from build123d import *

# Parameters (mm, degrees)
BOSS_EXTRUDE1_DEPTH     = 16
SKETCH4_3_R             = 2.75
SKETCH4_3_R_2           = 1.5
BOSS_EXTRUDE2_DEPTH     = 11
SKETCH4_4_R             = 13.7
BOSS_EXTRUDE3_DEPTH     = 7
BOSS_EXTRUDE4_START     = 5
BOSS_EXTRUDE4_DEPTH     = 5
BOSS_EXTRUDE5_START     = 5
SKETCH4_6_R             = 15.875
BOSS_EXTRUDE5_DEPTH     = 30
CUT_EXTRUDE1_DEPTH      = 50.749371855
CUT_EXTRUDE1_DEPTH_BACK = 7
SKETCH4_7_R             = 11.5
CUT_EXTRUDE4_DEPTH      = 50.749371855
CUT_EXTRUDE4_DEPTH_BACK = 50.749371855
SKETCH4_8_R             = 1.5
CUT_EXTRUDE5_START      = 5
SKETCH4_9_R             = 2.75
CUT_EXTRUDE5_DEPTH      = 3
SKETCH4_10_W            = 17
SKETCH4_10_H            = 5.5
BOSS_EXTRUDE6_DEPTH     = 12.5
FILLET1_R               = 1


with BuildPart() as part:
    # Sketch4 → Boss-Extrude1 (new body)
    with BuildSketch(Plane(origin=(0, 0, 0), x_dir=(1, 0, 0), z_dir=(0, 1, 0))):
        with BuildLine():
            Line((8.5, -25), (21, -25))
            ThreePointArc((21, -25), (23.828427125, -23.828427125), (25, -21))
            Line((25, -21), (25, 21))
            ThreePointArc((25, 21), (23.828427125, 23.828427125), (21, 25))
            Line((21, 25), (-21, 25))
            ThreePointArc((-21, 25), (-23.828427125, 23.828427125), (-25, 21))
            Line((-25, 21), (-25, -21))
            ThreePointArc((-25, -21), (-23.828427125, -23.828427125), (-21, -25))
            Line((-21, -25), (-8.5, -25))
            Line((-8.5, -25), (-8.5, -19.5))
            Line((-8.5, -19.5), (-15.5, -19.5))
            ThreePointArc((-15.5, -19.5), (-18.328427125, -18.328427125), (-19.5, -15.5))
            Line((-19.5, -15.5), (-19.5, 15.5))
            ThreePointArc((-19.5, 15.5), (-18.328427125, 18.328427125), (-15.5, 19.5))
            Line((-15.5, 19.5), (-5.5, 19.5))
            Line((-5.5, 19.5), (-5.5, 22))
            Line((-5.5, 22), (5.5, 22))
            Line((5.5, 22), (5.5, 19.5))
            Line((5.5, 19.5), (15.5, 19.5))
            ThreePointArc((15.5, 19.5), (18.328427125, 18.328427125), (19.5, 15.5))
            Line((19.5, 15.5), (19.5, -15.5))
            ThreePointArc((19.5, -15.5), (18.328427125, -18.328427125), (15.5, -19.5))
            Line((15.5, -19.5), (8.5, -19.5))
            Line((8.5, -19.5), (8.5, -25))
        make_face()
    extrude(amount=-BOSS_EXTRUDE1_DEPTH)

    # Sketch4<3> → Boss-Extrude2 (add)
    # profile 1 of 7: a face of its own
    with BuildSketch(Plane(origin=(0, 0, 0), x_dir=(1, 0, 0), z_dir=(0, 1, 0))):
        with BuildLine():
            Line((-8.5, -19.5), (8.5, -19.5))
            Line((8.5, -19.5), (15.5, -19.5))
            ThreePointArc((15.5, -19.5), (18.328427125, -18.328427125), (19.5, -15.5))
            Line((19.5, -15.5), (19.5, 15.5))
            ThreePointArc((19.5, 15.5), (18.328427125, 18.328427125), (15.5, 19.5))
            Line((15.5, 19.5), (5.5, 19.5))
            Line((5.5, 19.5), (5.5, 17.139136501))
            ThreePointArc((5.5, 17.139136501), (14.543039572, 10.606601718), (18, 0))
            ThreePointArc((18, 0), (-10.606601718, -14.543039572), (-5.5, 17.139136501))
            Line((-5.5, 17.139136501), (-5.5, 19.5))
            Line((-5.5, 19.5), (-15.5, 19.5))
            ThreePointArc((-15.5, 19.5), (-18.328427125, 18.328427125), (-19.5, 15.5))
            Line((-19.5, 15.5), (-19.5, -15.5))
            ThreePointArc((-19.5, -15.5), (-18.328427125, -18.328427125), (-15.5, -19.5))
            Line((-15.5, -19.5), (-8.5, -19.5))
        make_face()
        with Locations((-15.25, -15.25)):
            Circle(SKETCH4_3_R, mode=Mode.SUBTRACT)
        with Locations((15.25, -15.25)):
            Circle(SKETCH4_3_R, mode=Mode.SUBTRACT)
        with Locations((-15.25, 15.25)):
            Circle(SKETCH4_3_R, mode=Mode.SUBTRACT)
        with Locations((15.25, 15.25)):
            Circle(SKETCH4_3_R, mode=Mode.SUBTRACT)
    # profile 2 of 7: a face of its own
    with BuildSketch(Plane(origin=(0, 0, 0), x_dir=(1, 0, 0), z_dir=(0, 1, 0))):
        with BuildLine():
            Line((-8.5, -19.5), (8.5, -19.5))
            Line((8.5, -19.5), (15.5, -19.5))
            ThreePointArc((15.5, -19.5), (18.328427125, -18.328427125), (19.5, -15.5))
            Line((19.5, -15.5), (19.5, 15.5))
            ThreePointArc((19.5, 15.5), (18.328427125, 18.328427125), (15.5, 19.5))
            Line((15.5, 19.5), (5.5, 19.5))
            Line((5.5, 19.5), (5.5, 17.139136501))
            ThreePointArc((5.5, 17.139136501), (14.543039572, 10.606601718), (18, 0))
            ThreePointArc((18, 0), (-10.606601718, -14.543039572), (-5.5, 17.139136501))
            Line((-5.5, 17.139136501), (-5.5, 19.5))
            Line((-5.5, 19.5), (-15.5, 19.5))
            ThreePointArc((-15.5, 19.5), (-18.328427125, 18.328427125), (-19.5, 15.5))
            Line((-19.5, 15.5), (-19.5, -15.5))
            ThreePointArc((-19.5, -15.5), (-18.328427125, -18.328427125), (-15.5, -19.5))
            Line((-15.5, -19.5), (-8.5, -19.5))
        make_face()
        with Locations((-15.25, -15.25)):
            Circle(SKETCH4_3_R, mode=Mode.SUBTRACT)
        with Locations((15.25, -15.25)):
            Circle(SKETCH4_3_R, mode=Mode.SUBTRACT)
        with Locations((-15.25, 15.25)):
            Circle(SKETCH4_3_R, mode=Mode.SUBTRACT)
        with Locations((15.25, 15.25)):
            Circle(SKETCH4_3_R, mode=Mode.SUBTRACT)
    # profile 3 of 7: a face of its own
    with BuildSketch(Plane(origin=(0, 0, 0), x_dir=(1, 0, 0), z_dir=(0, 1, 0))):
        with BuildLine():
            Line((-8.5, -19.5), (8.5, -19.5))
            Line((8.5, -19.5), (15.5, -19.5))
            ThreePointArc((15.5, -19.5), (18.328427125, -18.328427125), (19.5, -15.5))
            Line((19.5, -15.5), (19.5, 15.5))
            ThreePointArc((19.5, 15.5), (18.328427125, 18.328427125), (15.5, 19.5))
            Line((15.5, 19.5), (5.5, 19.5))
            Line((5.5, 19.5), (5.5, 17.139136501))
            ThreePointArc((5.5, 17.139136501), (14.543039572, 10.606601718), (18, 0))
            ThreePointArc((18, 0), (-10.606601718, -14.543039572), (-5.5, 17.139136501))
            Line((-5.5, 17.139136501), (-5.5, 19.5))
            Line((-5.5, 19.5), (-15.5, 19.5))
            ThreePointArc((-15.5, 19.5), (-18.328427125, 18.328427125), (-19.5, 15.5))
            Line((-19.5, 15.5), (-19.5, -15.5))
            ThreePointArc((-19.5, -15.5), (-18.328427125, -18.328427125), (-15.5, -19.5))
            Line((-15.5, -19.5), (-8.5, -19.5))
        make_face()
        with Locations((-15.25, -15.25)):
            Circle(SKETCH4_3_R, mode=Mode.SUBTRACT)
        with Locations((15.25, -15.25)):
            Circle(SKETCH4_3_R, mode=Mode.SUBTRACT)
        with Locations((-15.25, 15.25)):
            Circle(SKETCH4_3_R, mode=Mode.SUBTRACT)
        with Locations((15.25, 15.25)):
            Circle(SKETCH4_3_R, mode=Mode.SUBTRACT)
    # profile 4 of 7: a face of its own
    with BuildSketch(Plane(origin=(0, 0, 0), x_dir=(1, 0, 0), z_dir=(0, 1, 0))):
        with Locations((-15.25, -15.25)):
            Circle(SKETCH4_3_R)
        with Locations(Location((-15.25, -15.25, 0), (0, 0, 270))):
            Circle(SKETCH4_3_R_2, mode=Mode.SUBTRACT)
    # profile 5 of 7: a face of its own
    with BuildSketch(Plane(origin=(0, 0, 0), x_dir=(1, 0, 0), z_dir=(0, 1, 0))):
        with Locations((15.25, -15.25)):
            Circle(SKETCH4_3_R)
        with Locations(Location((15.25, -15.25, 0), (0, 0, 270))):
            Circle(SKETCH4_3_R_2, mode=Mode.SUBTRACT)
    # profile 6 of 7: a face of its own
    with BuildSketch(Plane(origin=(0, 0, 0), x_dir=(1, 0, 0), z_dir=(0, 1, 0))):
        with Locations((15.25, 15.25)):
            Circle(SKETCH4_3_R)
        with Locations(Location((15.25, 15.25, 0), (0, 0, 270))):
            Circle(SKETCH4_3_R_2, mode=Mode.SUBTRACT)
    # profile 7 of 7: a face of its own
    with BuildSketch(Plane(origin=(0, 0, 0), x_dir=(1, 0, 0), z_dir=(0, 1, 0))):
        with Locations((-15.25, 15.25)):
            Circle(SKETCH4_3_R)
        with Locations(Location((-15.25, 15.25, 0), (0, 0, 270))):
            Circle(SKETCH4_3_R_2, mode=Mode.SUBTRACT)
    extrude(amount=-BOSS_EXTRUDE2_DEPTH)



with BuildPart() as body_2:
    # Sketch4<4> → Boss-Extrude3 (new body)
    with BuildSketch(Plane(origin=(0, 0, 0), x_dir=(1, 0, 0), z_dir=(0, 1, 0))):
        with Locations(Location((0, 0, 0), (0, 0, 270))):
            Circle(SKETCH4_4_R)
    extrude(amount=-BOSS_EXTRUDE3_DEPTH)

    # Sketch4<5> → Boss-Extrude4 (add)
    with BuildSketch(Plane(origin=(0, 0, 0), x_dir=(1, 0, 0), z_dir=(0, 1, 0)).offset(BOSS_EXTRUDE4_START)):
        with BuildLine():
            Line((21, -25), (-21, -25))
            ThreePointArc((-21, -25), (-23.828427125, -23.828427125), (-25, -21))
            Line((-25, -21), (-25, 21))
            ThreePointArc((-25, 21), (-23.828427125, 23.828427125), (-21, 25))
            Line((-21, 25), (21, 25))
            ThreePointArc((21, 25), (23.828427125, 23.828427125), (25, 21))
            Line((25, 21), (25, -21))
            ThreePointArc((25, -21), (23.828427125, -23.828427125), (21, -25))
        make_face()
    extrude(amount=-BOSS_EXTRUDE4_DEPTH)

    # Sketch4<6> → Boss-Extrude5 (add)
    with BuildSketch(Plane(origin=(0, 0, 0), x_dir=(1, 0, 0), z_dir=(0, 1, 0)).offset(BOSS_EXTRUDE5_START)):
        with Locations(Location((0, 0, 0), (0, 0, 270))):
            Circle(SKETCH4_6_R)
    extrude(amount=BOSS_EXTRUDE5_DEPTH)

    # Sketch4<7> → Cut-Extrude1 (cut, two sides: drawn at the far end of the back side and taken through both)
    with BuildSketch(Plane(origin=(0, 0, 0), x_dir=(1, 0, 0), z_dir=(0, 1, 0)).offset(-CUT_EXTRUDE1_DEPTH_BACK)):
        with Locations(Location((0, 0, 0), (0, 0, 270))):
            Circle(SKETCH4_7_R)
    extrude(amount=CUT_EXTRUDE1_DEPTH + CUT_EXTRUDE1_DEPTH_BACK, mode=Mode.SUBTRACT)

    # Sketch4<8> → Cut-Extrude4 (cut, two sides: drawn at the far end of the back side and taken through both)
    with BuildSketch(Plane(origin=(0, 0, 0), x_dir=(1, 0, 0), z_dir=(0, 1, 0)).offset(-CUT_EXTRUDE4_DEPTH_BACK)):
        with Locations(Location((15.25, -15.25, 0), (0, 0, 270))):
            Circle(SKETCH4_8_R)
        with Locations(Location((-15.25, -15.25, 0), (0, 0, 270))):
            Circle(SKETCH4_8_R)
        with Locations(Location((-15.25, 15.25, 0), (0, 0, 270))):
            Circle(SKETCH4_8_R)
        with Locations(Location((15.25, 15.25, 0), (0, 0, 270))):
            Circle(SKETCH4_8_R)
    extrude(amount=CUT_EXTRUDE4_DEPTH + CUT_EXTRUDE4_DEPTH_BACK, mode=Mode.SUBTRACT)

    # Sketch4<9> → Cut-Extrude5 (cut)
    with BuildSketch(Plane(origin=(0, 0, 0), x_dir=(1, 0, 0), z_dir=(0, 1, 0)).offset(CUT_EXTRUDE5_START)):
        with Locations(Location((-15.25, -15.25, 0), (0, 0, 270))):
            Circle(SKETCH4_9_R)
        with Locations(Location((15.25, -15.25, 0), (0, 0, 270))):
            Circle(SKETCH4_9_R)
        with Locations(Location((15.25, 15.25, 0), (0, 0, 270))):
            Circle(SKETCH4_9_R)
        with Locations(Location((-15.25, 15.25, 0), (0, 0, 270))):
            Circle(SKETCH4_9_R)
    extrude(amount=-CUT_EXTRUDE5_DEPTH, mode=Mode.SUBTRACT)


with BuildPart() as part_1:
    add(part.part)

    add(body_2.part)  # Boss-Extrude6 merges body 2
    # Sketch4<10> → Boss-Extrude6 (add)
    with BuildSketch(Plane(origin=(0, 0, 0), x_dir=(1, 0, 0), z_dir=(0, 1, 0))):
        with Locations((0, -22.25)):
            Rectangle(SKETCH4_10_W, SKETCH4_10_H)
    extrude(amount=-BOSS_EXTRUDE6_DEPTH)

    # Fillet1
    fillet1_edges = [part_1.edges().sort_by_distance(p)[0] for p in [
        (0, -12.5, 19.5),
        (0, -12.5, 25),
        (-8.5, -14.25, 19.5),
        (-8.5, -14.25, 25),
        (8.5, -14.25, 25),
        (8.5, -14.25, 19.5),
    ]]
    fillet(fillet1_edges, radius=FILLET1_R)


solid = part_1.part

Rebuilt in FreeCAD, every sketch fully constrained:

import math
import FreeCAD as App
import Part
import Sketcher

V = App.Vector


def edges_at(feature, points):
    """Names of the edges that pass closest to the given points."""
    edges = feature.Shape.Edges
    near = lambda p: min(range(len(edges)), key=lambda i: edges[i].distToShape(Part.Vertex(*p))[0])
    return sorted({f"Edge{near(p) + 1}" for p in points})

doc = App.newDocument("Part")
params = doc.addObject("Spreadsheet::Sheet", "Params")
for row, (alias, value) in enumerate([
    ("sketch1_radius", "4 mm"),
    ("sketch1_width", "42 mm"),
    ("sketch1_width2", "7 mm"),
    ("sketch1_width3", "10 mm"),
    ("sketch1_width4", "11 mm"),
    ("pad1_length", "16 mm"),
    ("sketch2_diameter", "3 mm"),
    ("sketch2_radius", "4 mm"),
    ("sketch2_radius2", "18 mm"),
    ("sketch2_width", "10 mm"),
    ("sketch2_width2", "31 mm"),
    ("pad2_length", "11 mm"),
    ("sketch3_diameter", "27.4 mm"),
    ("pad3_length", "7 mm"),
    ("sketch4_radius", "4 mm"),
    ("sketch4_width", "42 mm"),
    ("pad4_length", "5 mm"),
    ("sketch5_diameter", "31.75 mm"),
    ("pad5_length", "30 mm"),
    ("sketch6_diameter", "23 mm"),
    ("sketch7_diameter", "3 mm"),
    ("sketch8_diameter", "5.5 mm"),
    ("pocket3_length", "3 mm"),
    ("sketch9_width", "17 mm"),
    ("sketch9_height", "5.5 mm"),
    ("pad6_length", "12.5 mm"),
    ("fillet_radius", "1 mm"),
], start=1):
    params.set(f"A{row}", alias)
    params.set(f"B{row}", "=" + value)
    params.setAlias(f"B{row}", alias)

body = doc.addObject("PartDesign::Body", "Body")

# Sketch on XZ plane
sketch1 = doc.addObject("Sketcher::SketchObject", "Sketch")
body.addObject(sketch1)
sketch1.AttachmentSupport = (doc.XZ_Plane, [""])
sketch1.MapMode = "FlatFace"
sketch1.addGeometry(Part.LineSegment(V(8.5, 25, 0), V(21, 25, 0)), False)
sketch1.addGeometry(Part.ArcOfCircle(Part.Circle(V(21, 21, 0), V(0, 0, 1), 4), math.radians(0), math.radians(90)), False)
sketch1.addGeometry(Part.LineSegment(V(25, 21, 0), V(25, -21, 0)), False)
sketch1.addGeometry(Part.ArcOfCircle(Part.Circle(V(21, -21, 0), V(0, 0, 1), 4), math.radians(-90), math.radians(0)), False)
sketch1.addGeometry(Part.LineSegment(V(21, -25, 0), V(-21, -25, 0)), False)
sketch1.addGeometry(Part.ArcOfCircle(Part.Circle(V(-21, -21, 0), V(0, 0, 1), 4), math.radians(180), math.radians(270)), False)
sketch1.addGeometry(Part.LineSegment(V(-25, -21, 0), V(-25, 21, 0)), False)
sketch1.addGeometry(Part.ArcOfCircle(Part.Circle(V(-21, 21, 0), V(0, 0, 1), 4), math.radians(90), math.radians(180)), False)
sketch1.addGeometry(Part.LineSegment(V(-21, 25, 0), V(-8.5, 25, 0)), False)
sketch1.addGeometry(Part.LineSegment(V(-8.5, 25, 0), V(-8.5, 19.5, 0)), False)
sketch1.addGeometry(Part.LineSegment(V(-8.5, 19.5, 0), V(-15.5, 19.5, 0)), False)
sketch1.addGeometry(Part.ArcOfCircle(Part.Circle(V(-15.5, 15.5, 0), V(0, 0, 1), 4), math.radians(90), math.radians(180)), False)
sketch1.addGeometry(Part.LineSegment(V(-19.5, 15.5, 0), V(-19.5, -15.5, 0)), False)
sketch1.addGeometry(Part.ArcOfCircle(Part.Circle(V(-15.5, -15.5, 0), V(0, 0, 1), 4), math.radians(180), math.radians(270)), False)
sketch1.addGeometry(Part.LineSegment(V(-15.5, -19.5, 0), V(-5.5, -19.5, 0)), False)
sketch1.addGeometry(Part.LineSegment(V(-5.5, -19.5, 0), V(-5.5, -22, 0)), False)
sketch1.addGeometry(Part.LineSegment(V(-5.5, -22, 0), V(5.5, -22, 0)), False)
sketch1.addGeometry(Part.LineSegment(V(5.5, -22, 0), V(5.5, -19.5, 0)), False)
sketch1.addGeometry(Part.LineSegment(V(5.5, -19.5, 0), V(15.5, -19.5, 0)), False)
sketch1.addGeometry(Part.ArcOfCircle(Part.Circle(V(15.5, -15.5, 0), V(0, 0, 1), 4), math.radians(-90), math.radians(0)), False)
sketch1.addGeometry(Part.LineSegment(V(19.5, -15.5, 0), V(19.5, 15.5, 0)), False)
sketch1.addGeometry(Part.ArcOfCircle(Part.Circle(V(15.5, 15.5, 0), V(0, 0, 1), 4), math.radians(0), math.radians(90)), False)
sketch1.addGeometry(Part.LineSegment(V(15.5, 19.5, 0), V(8.5, 19.5, 0)), False)
sketch1.addGeometry(Part.LineSegment(V(8.5, 19.5, 0), V(8.5, 25, 0)), False)
sketch1.addConstraint(Sketcher.Constraint("Tangent", 0, 2, 1, 2))
sketch1.addConstraint(Sketcher.Constraint("Tangent", 1, 1, 2, 1))
sketch1.addConstraint(Sketcher.Constraint("Tangent", 2, 2, 3, 2))
sketch1.addConstraint(Sketcher.Constraint("Tangent", 3, 1, 4, 1))
sketch1.addConstraint(Sketcher.Constraint("Tangent", 4, 2, 5, 2))
sketch1.addConstraint(Sketcher.Constraint("Tangent", 5, 1, 6, 1))
sketch1.addConstraint(Sketcher.Constraint("Tangent", 6, 2, 7, 2))
sketch1.addConstraint(Sketcher.Constraint("Tangent", 7, 1, 8, 1))
sketch1.addConstraint(Sketcher.Constraint("Coincident", 8, 2, 9, 1))
sketch1.addConstraint(Sketcher.Constraint("Coincident", 9, 2, 10, 1))
sketch1.addConstraint(Sketcher.Constraint("Tangent", 10, 2, 11, 1))
sketch1.addConstraint(Sketcher.Constraint("Tangent", 11, 2, 12, 1))
sketch1.addConstraint(Sketcher.Constraint("Tangent", 12, 2, 13, 1))
sketch1.addConstraint(Sketcher.Constraint("Tangent", 13, 2, 14, 1))
sketch1.addConstraint(Sketcher.Constraint("Coincident", 14, 2, 15, 1))
sketch1.addConstraint(Sketcher.Constraint("Coincident", 15, 2, 16, 1))
sketch1.addConstraint(Sketcher.Constraint("Coincident", 16, 2, 17, 1))
sketch1.addConstraint(Sketcher.Constraint("Coincident", 17, 2, 18, 1))
sketch1.addConstraint(Sketcher.Constraint("Tangent", 18, 2, 19, 1))
sketch1.addConstraint(Sketcher.Constraint("Tangent", 19, 2, 20, 1))
sketch1.addConstraint(Sketcher.Constraint("Tangent", 20, 2, 21, 1))
sketch1.addConstraint(Sketcher.Constraint("Tangent", 21, 2, 22, 1))
sketch1.addConstraint(Sketcher.Constraint("Coincident", 22, 2, 23, 1))
sketch1.addConstraint(Sketcher.Constraint("Coincident", 23, 2, 0, 1))
sketch1.addConstraint(Sketcher.Constraint("Horizontal", 0))
sketch1.addConstraint(Sketcher.Constraint("Vertical", 2))
sketch1.addConstraint(Sketcher.Constraint("Horizontal", 4))
sketch1.addConstraint(Sketcher.Constraint("Vertical", 6))
sketch1.addConstraint(Sketcher.Constraint("Horizontal", 8))
sketch1.addConstraint(Sketcher.Constraint("Vertical", 9))
sketch1.addConstraint(Sketcher.Constraint("Horizontal", 10))
sketch1.addConstraint(Sketcher.Constraint("Vertical", 12))
sketch1.addConstraint(Sketcher.Constraint("Horizontal", 14))
sketch1.addConstraint(Sketcher.Constraint("Vertical", 15))
sketch1.addConstraint(Sketcher.Constraint("Horizontal", 16))
sketch1.addConstraint(Sketcher.Constraint("Vertical", 17))
sketch1.addConstraint(Sketcher.Constraint("Horizontal", 18))
sketch1.addConstraint(Sketcher.Constraint("Vertical", 20))
sketch1.addConstraint(Sketcher.Constraint("Horizontal", 22))
sketch1.addConstraint(Sketcher.Constraint("Vertical", 23))
sketch1.addConstraint(Sketcher.Constraint("Equal", 1, 3))
sketch1.addConstraint(Sketcher.Constraint("Equal", 3, 5))
sketch1.addConstraint(Sketcher.Constraint("Equal", 5, 7))
sketch1.addConstraint(Sketcher.Constraint("Equal", 7, 11))
sketch1.addConstraint(Sketcher.Constraint("Equal", 11, 13))
sketch1.addConstraint(Sketcher.Constraint("Equal", 13, 19))
sketch1.addConstraint(Sketcher.Constraint("Equal", 19, 21))
sketch1.addConstraint(Sketcher.Constraint("Symmetric", 1, 3, 5, 3, -1, 1))
sketch1.addConstraint(Sketcher.Constraint("Symmetric", 11, 3, 19, 3, -1, 1))
sketch1.addConstraint(Sketcher.Constraint("Symmetric", 14, 2, 17, 2, -2))
sketch1.addConstraint(Sketcher.Constraint("Symmetric", 9, 2, 22, 2, -2))
sketch1.addConstraint(Sketcher.Constraint("Horizontal", 1, 3, 7, 3))
sketch1.addConstraint(Sketcher.Constraint("Equal", 4, 2))
sketch1.addConstraint(Sketcher.Constraint("Radius", 1, 4.0))
sketch1.addConstraint(Sketcher.Constraint("DistanceX", 4, 2, 4, 1, 42.0))
sketch1.addConstraint(Sketcher.Constraint("DistanceX", 10, 2, 10, 1, 7.0))
sketch1.addConstraint(Sketcher.Constraint("DistanceX", 14, 1, 14, 2, 10.0))
sketch1.addConstraint(Sketcher.Constraint("DistanceX", 16, 1, 16, 2, 11.0))
sketch1.addConstraint(Sketcher.Constraint("DistanceY", 12, 2, 12, 1, 31.0))
sketch1.addConstraint(Sketcher.Constraint("DistanceY", 15, 2, 15, 1, 2.5))
sketch1.setExpression("Constraints[53]", "Params.sketch1_radius")
sketch1.setExpression("Constraints[54]", "Params.sketch1_width")
sketch1.setExpression("Constraints[55]", "Params.sketch1_width2")
sketch1.setExpression("Constraints[56]", "Params.sketch1_width3")
sketch1.setExpression("Constraints[57]", "Params.sketch1_width4")
pad1 = doc.addObject("PartDesign::Pad", "Pad")
body.addObject(pad1)
pad1.Profile = sketch1
pad1.setExpression("Length", "Params.pad1_length")

# Sketch on XZ plane
sketch2 = doc.addObject("Sketcher::SketchObject", "Sketch001")
body.addObject(sketch2)
sketch2.AttachmentSupport = (doc.XZ_Plane, [""])
sketch2.MapMode = "FlatFace"
sketch2.addGeometry(Part.ArcOfCircle(Part.Circle(V(15.5, 15.5, 0), V(0, 0, 1), 4), math.radians(0), math.radians(90)), False)
sketch2.addGeometry(Part.LineSegment(V(19.5, 15.5, 0), V(19.5, -15.5, 0)), False)
sketch2.addGeometry(Part.ArcOfCircle(Part.Circle(V(15.5, -15.5, 0), V(0, 0, 1), 4), math.radians(-90), math.radians(0)), False)
sketch2.addGeometry(Part.LineSegment(V(15.5, -19.5, 0), V(5.5, -19.5, 0)), False)
sketch2.addGeometry(Part.LineSegment(V(5.5, -19.5, 0), V(5.5, -17.139137, 0)), False)
sketch2.addGeometry(Part.ArcOfCircle(Part.Circle(V(0, 0, 0), V(0, 0, 1), 18), math.radians(-72.208409), math.radians(0)), False)
sketch2.addGeometry(Part.ArcOfCircle(Part.Circle(V(0, 0, 0), V(0, 0, 1), 18), math.radians(0), math.radians(252.208409)), False)
sketch2.addGeometry(Part.LineSegment(V(-5.5, -17.139137, 0), V(-5.5, -19.5, 0)), False)
sketch2.addGeometry(Part.LineSegment(V(-5.5, -19.5, 0), V(-15.5, -19.5, 0)), False)
sketch2.addGeometry(Part.ArcOfCircle(Part.Circle(V(-15.5, -15.5, 0), V(0, 0, 1), 4), math.radians(180), math.radians(270)), False)
sketch2.addGeometry(Part.LineSegment(V(-19.5, -15.5, 0), V(-19.5, 15.5, 0)), False)
sketch2.addGeometry(Part.ArcOfCircle(Part.Circle(V(-15.5, 15.5, 0), V(0, 0, 1), 4), math.radians(90), math.radians(180)), False)
sketch2.addGeometry(Part.LineSegment(V(-15.5, 19.5, 0), V(15.5, 19.5, 0)), False)
sketch2.addGeometry(Part.Circle(V(-15.25, 15.25, 0), V(0, 0, 1), 1.5), False)
sketch2.addGeometry(Part.Circle(V(15.25, 15.25, 0), V(0, 0, 1), 1.5), False)
sketch2.addGeometry(Part.Circle(V(-15.25, -15.25, 0), V(0, 0, 1), 1.5), False)
sketch2.addGeometry(Part.Circle(V(15.25, -15.25, 0), V(0, 0, 1), 1.5), False)
sketch2.addConstraint(Sketcher.Constraint("Tangent", 0, 1, 1, 1))
sketch2.addConstraint(Sketcher.Constraint("Tangent", 1, 2, 2, 2))
sketch2.addConstraint(Sketcher.Constraint("Tangent", 2, 1, 3, 1))
sketch2.addConstraint(Sketcher.Constraint("Coincident", 3, 2, 4, 1))
sketch2.addConstraint(Sketcher.Constraint("Coincident", 4, 2, 5, 1))
sketch2.addConstraint(Sketcher.Constraint("Tangent", 5, 2, 6, 1))
sketch2.addConstraint(Sketcher.Constraint("Coincident", 6, 2, 7, 1))
sketch2.addConstraint(Sketcher.Constraint("Coincident", 7, 2, 8, 1))
sketch2.addConstraint(Sketcher.Constraint("Tangent", 8, 2, 9, 2))
sketch2.addConstraint(Sketcher.Constraint("Tangent", 9, 1, 10, 1))
sketch2.addConstraint(Sketcher.Constraint("Tangent", 10, 2, 11, 2))
sketch2.addConstraint(Sketcher.Constraint("Tangent", 11, 1, 12, 1))
sketch2.addConstraint(Sketcher.Constraint("Tangent", 12, 2, 0, 2))
sketch2.addConstraint(Sketcher.Constraint("Vertical", 1))
sketch2.addConstraint(Sketcher.Constraint("Horizontal", 3))
sketch2.addConstraint(Sketcher.Constraint("Vertical", 4))
sketch2.addConstraint(Sketcher.Constraint("Vertical", 7))
sketch2.addConstraint(Sketcher.Constraint("Horizontal", 8))
sketch2.addConstraint(Sketcher.Constraint("Vertical", 10))
sketch2.addConstraint(Sketcher.Constraint("Horizontal", 12))
sketch2.addConstraint(Sketcher.Constraint("Coincident", 5, 3, -1, 1))
sketch2.addConstraint(Sketcher.Constraint("Equal", 0, 2))
sketch2.addConstraint(Sketcher.Constraint("Equal", 5, 6))
sketch2.addConstraint(Sketcher.Constraint("Equal", 2, 9))
sketch2.addConstraint(Sketcher.Constraint("Equal", 9, 11))
sketch2.addConstraint(Sketcher.Constraint("Equal", 13, 14))
sketch2.addConstraint(Sketcher.Constraint("Equal", 14, 15))
sketch2.addConstraint(Sketcher.Constraint("Equal", 15, 16))
sketch2.addConstraint(Sketcher.Constraint("Symmetric", 0, 3, 9, 3, -1, 1))
sketch2.addConstraint(Sketcher.Constraint("Symmetric", 14, 3, 15, 3, -1, 1))
sketch2.addConstraint(Sketcher.Constraint("Symmetric", 13, 3, 16, 3, -1, 1))
sketch2.addConstraint(Sketcher.Constraint("Symmetric", 13, 3, 14, 3, -2))
sketch2.addConstraint(Sketcher.Constraint("Symmetric", 3, 2, 7, 2, -2))
sketch2.addConstraint(Sketcher.Constraint("PointOnObject", 5, 2, -1))
sketch2.addConstraint(Sketcher.Constraint("Equal", 12, 1))
sketch2.addConstraint(Sketcher.Constraint("Diameter", 13, 3.0))
sketch2.addConstraint(Sketcher.Constraint("Radius", 0, 4.0))
sketch2.addConstraint(Sketcher.Constraint("Radius", 5, 18.0))
sketch2.addConstraint(Sketcher.Constraint("DistanceX", 3, 2, 3, 1, 10.0))
sketch2.addConstraint(Sketcher.Constraint("DistanceX", 12, 1, 12, 2, 31.0))
sketch2.addConstraint(Sketcher.Constraint("DistanceX", 13, 3, 14, 3, 30.5))
sketch2.addConstraint(Sketcher.Constraint("DistanceY", 15, 3, 13, 3, 30.5))
sketch2.setExpression("Constraints[35]", "Params.sketch2_diameter")
sketch2.setExpression("Constraints[36]", "Params.sketch2_radius")
sketch2.setExpression("Constraints[37]", "Params.sketch2_radius2")
sketch2.setExpression("Constraints[38]", "Params.sketch2_width")
sketch2.setExpression("Constraints[39]", "Params.sketch2_width2")
pad2 = doc.addObject("PartDesign::Pad", "Pad001")
body.addObject(pad2)
pad2.Profile = sketch2
pad2.setExpression("Length", "Params.pad2_length")
body2 = doc.addObject("PartDesign::Body", "Body001")

# Sketch on XZ plane
sketch3 = doc.addObject("Sketcher::SketchObject", "Sketch002")
body2.addObject(sketch3)
sketch3.AttachmentSupport = (doc.getObject("XZ_Plane001"), [""])
sketch3.MapMode = "FlatFace"
sketch3.addGeometry(Part.Circle(V(0, 0, 0), V(0, 0, 1), 13.7), False)
sketch3.addConstraint(Sketcher.Constraint("Coincident", 0, 3, -1, 1))
sketch3.addConstraint(Sketcher.Constraint("Diameter", 0, 27.4))
sketch3.setExpression("Constraints[1]", "Params.sketch3_diameter")
pad3 = doc.addObject("PartDesign::Pad", "Pad002")
body2.addObject(pad3)
pad3.Profile = sketch3
pad3.setExpression("Length", "Params.pad3_length")

# Sketch on XZ plane
sketch4 = doc.addObject("Sketcher::SketchObject", "Sketch003")
body2.addObject(sketch4)
sketch4.AttachmentSupport = (doc.getObject("XZ_Plane001"), [""])
sketch4.MapMode = "FlatFace"
sketch4.AttachmentOffset = App.Placement(V(0, 0, -5), App.Rotation())
sketch4.addGeometry(Part.LineSegment(V(-21, 25, 0), V(21, 25, 0)), False)
sketch4.addGeometry(Part.ArcOfCircle(Part.Circle(V(21, 21, 0), V(0, 0, 1), 4), math.radians(0), math.radians(90)), False)
sketch4.addGeometry(Part.LineSegment(V(25, 21, 0), V(25, -21, 0)), False)
sketch4.addGeometry(Part.ArcOfCircle(Part.Circle(V(21, -21, 0), V(0, 0, 1), 4), math.radians(-90), math.radians(0)), False)
sketch4.addGeometry(Part.LineSegment(V(21, -25, 0), V(-21, -25, 0)), False)
sketch4.addGeometry(Part.ArcOfCircle(Part.Circle(V(-21, -21, 0), V(0, 0, 1), 4), math.radians(180), math.radians(270)), False)
sketch4.addGeometry(Part.LineSegment(V(-25, -21, 0), V(-25, 21, 0)), False)
sketch4.addGeometry(Part.ArcOfCircle(Part.Circle(V(-21, 21, 0), V(0, 0, 1), 4), math.radians(90), math.radians(180)), False)
sketch4.addConstraint(Sketcher.Constraint("Tangent", 0, 2, 1, 2))
sketch4.addConstraint(Sketcher.Constraint("Tangent", 1, 1, 2, 1))
sketch4.addConstraint(Sketcher.Constraint("Tangent", 2, 2, 3, 2))
sketch4.addConstraint(Sketcher.Constraint("Tangent", 3, 1, 4, 1))
sketch4.addConstraint(Sketcher.Constraint("Tangent", 4, 2, 5, 2))
sketch4.addConstraint(Sketcher.Constraint("Tangent", 5, 1, 6, 1))
sketch4.addConstraint(Sketcher.Constraint("Tangent", 6, 2, 7, 2))
sketch4.addConstraint(Sketcher.Constraint("Tangent", 7, 1, 0, 1))
sketch4.addConstraint(Sketcher.Constraint("Horizontal", 0))
sketch4.addConstraint(Sketcher.Constraint("Vertical", 2))
sketch4.addConstraint(Sketcher.Constraint("Horizontal", 4))
sketch4.addConstraint(Sketcher.Constraint("Vertical", 6))
sketch4.addConstraint(Sketcher.Constraint("Equal", 1, 3))
sketch4.addConstraint(Sketcher.Constraint("Equal", 3, 5))
sketch4.addConstraint(Sketcher.Constraint("Equal", 5, 7))
sketch4.addConstraint(Sketcher.Constraint("Symmetric", 1, 3, 5, 3, -1, 1))
sketch4.addConstraint(Sketcher.Constraint("Equal", 4, 2))
sketch4.addConstraint(Sketcher.Constraint("Radius", 1, 4.0))
sketch4.addConstraint(Sketcher.Constraint("DistanceX", 0, 1, 0, 2, 42.0))
sketch4.setExpression("Constraints[17]", "Params.sketch4_radius")
sketch4.setExpression("Constraints[18]", "Params.sketch4_width")
pad4 = doc.addObject("PartDesign::Pad", "Pad003")
body2.addObject(pad4)
pad4.Profile = sketch4
pad4.setExpression("Length", "Params.pad4_length")

# Sketch on XZ plane
sketch5 = doc.addObject("Sketcher::SketchObject", "Sketch004")
body2.addObject(sketch5)
sketch5.AttachmentSupport = (doc.getObject("XZ_Plane001"), [""])
sketch5.MapMode = "FlatFace"
sketch5.AttachmentOffset = App.Placement(V(0, 0, -5), App.Rotation())
sketch5.addGeometry(Part.Circle(V(0, 0, 0), V(0, 0, 1), 15.875), False)
sketch5.addConstraint(Sketcher.Constraint("Coincident", 0, 3, -1, 1))
sketch5.addConstraint(Sketcher.Constraint("Diameter", 0, 31.75))
sketch5.setExpression("Constraints[1]", "Params.sketch5_diameter")
pad5 = doc.addObject("PartDesign::Pad", "Pad004")
body2.addObject(pad5)
pad5.Profile = sketch5
pad5.setExpression("Length", "Params.pad5_length")
pad5.Reversed = True

# Sketch on XZ plane
sketch6 = doc.addObject("Sketcher::SketchObject", "Sketch005")
body2.addObject(sketch6)
sketch6.AttachmentSupport = (doc.getObject("XZ_Plane001"), [""])
sketch6.MapMode = "FlatFace"
sketch6.addGeometry(Part.Circle(V(0, 0, 0), V(0, 0, 1), 11.5), False)
sketch6.addConstraint(Sketcher.Constraint("Coincident", 0, 3, -1, 1))
sketch6.addConstraint(Sketcher.Constraint("Diameter", 0, 23.0))
sketch6.setExpression("Constraints[1]", "Params.sketch6_diameter")
pocket1 = doc.addObject("PartDesign::Pocket", "Pocket")
body2.addObject(pocket1)
pocket1.Profile = sketch6
pocket1.Type = "ThroughAll"
pocket1.Midplane = True

# Sketch on XZ plane
sketch7 = doc.addObject("Sketcher::SketchObject", "Sketch006")
body2.addObject(sketch7)
sketch7.AttachmentSupport = (doc.getObject("XZ_Plane001"), [""])
sketch7.MapMode = "FlatFace"
sketch7.addGeometry(Part.Circle(V(15.25, 15.25, 0), V(0, 0, 1), 1.5), False)
sketch7.addGeometry(Part.Circle(V(-15.25, 15.25, 0), V(0, 0, 1), 1.5), False)
sketch7.addGeometry(Part.Circle(V(-15.25, -15.25, 0), V(0, 0, 1), 1.5), False)
sketch7.addGeometry(Part.Circle(V(15.25, -15.25, 0), V(0, 0, 1), 1.5), False)
sketch7.addConstraint(Sketcher.Constraint("Equal", 0, 1))
sketch7.addConstraint(Sketcher.Constraint("Equal", 1, 2))
sketch7.addConstraint(Sketcher.Constraint("Equal", 2, 3))
sketch7.addConstraint(Sketcher.Constraint("Symmetric", 0, 3, 2, 3, -1, 1))
sketch7.addConstraint(Sketcher.Constraint("Symmetric", 1, 3, 3, 3, -1, 1))
sketch7.addConstraint(Sketcher.Constraint("Symmetric", 0, 3, 1, 3, -2))
sketch7.addConstraint(Sketcher.Constraint("Diameter", 0, 3.0))
sketch7.addConstraint(Sketcher.Constraint("DistanceX", 1, 3, 0, 3, 30.5))
sketch7.addConstraint(Sketcher.Constraint("DistanceY", 2, 3, 1, 3, 30.5))
sketch7.setExpression("Constraints[6]", "Params.sketch7_diameter")
pocket2 = doc.addObject("PartDesign::Pocket", "Pocket001")
body2.addObject(pocket2)
pocket2.Profile = sketch7
pocket2.Type = "ThroughAll"
pocket2.Midplane = True

# Sketch on XZ plane
sketch8 = doc.addObject("Sketcher::SketchObject", "Sketch007")
body2.addObject(sketch8)
sketch8.AttachmentSupport = (doc.getObject("XZ_Plane001"), [""])
sketch8.MapMode = "FlatFace"
sketch8.AttachmentOffset = App.Placement(V(0, 0, -5), App.Rotation())
sketch8.addGeometry(Part.Circle(V(-15.25, 15.25, 0), V(0, 0, 1), 2.75), False)
sketch8.addGeometry(Part.Circle(V(15.25, 15.25, 0), V(0, 0, 1), 2.75), False)
sketch8.addGeometry(Part.Circle(V(15.25, -15.25, 0), V(0, 0, 1), 2.75), False)
sketch8.addGeometry(Part.Circle(V(-15.25, -15.25, 0), V(0, 0, 1), 2.75), False)
sketch8.addConstraint(Sketcher.Constraint("Equal", 0, 1))
sketch8.addConstraint(Sketcher.Constraint("Equal", 1, 2))
sketch8.addConstraint(Sketcher.Constraint("Equal", 2, 3))
sketch8.addConstraint(Sketcher.Constraint("Symmetric", 0, 3, 2, 3, -1, 1))
sketch8.addConstraint(Sketcher.Constraint("Symmetric", 1, 3, 3, 3, -1, 1))
sketch8.addConstraint(Sketcher.Constraint("Symmetric", 0, 3, 1, 3, -2))
sketch8.addConstraint(Sketcher.Constraint("Diameter", 0, 5.5))
sketch8.addConstraint(Sketcher.Constraint("DistanceX", 0, 3, 1, 3, 30.5))
sketch8.addConstraint(Sketcher.Constraint("DistanceY", 2, 3, 1, 3, 30.5))
sketch8.setExpression("Constraints[6]", "Params.sketch8_diameter")
pocket3 = doc.addObject("PartDesign::Pocket", "Pocket002")
body2.addObject(pocket3)
pocket3.Profile = sketch8
pocket3.setExpression("Length", "Params.pocket3_length")
pocket3.Reversed = True
doc.recompute()

boolean = doc.addObject("PartDesign::Boolean", "Boolean")
body.addObject(boolean)
boolean.Type = "Fuse"
boolean.addObjects([body2])

# Sketch on XZ plane
sketch9 = doc.addObject("Sketcher::SketchObject", "Sketch008")
body.addObject(sketch9)
sketch9.AttachmentSupport = (doc.XZ_Plane, [""])
sketch9.MapMode = "FlatFace"
sketch9.addGeometry(Part.LineSegment(V(-8.5, 19.5, 0), V(-8.5, 25, 0)), False)
sketch9.addGeometry(Part.LineSegment(V(-8.5, 25, 0), V(8.5, 25, 0)), False)
sketch9.addGeometry(Part.LineSegment(V(8.5, 25, 0), V(8.5, 19.5, 0)), False)
sketch9.addGeometry(Part.LineSegment(V(8.5, 19.5, 0), V(-8.5, 19.5, 0)), False)
sketch9.addConstraint(Sketcher.Constraint("Coincident", 0, 2, 1, 1))
sketch9.addConstraint(Sketcher.Constraint("Coincident", 1, 2, 2, 1))
sketch9.addConstraint(Sketcher.Constraint("Coincident", 2, 2, 3, 1))
sketch9.addConstraint(Sketcher.Constraint("Coincident", 3, 2, 0, 1))
sketch9.addConstraint(Sketcher.Constraint("Vertical", 0))
sketch9.addConstraint(Sketcher.Constraint("Horizontal", 1))
sketch9.addConstraint(Sketcher.Constraint("Vertical", 2))
sketch9.addConstraint(Sketcher.Constraint("Horizontal", 3))
sketch9.addConstraint(Sketcher.Constraint("DistanceX", 1, 1, 1, 2, 17.0))
sketch9.addConstraint(Sketcher.Constraint("DistanceY", 0, 1, 0, 2, 5.5))
sketch9.addConstraint(Sketcher.Constraint("DistanceY", -1, 1, 0, 2, 25.0))
sketch9.addConstraint(Sketcher.Constraint("DistanceX", 0, 2, -1, 1, 8.5))
sketch9.setExpression("Constraints[8]", "Params.sketch9_width")
sketch9.setExpression("Constraints[9]", "Params.sketch9_height")
pad6 = doc.addObject("PartDesign::Pad", "Pad005")
body.addObject(pad6)
pad6.Profile = sketch9
pad6.setExpression("Length", "Params.pad6_length")
doc.recompute()

fillet = doc.addObject("PartDesign::Fillet", "Fillet")
body.addObject(fillet)
fillet.Base = (pad6, edges_at(pad6, [
    (0, -12.5, 19.5),
    (0, -12.5, 25),
    (-8.5, -14.25, 19.5),
    (-8.5, -14.25, 25),
    (8.5, -14.25, 25),
    (8.5, -14.25, 19.5),
]))
fillet.setExpression("Radius", "Params.fillet_radius")

doc.recompute()
